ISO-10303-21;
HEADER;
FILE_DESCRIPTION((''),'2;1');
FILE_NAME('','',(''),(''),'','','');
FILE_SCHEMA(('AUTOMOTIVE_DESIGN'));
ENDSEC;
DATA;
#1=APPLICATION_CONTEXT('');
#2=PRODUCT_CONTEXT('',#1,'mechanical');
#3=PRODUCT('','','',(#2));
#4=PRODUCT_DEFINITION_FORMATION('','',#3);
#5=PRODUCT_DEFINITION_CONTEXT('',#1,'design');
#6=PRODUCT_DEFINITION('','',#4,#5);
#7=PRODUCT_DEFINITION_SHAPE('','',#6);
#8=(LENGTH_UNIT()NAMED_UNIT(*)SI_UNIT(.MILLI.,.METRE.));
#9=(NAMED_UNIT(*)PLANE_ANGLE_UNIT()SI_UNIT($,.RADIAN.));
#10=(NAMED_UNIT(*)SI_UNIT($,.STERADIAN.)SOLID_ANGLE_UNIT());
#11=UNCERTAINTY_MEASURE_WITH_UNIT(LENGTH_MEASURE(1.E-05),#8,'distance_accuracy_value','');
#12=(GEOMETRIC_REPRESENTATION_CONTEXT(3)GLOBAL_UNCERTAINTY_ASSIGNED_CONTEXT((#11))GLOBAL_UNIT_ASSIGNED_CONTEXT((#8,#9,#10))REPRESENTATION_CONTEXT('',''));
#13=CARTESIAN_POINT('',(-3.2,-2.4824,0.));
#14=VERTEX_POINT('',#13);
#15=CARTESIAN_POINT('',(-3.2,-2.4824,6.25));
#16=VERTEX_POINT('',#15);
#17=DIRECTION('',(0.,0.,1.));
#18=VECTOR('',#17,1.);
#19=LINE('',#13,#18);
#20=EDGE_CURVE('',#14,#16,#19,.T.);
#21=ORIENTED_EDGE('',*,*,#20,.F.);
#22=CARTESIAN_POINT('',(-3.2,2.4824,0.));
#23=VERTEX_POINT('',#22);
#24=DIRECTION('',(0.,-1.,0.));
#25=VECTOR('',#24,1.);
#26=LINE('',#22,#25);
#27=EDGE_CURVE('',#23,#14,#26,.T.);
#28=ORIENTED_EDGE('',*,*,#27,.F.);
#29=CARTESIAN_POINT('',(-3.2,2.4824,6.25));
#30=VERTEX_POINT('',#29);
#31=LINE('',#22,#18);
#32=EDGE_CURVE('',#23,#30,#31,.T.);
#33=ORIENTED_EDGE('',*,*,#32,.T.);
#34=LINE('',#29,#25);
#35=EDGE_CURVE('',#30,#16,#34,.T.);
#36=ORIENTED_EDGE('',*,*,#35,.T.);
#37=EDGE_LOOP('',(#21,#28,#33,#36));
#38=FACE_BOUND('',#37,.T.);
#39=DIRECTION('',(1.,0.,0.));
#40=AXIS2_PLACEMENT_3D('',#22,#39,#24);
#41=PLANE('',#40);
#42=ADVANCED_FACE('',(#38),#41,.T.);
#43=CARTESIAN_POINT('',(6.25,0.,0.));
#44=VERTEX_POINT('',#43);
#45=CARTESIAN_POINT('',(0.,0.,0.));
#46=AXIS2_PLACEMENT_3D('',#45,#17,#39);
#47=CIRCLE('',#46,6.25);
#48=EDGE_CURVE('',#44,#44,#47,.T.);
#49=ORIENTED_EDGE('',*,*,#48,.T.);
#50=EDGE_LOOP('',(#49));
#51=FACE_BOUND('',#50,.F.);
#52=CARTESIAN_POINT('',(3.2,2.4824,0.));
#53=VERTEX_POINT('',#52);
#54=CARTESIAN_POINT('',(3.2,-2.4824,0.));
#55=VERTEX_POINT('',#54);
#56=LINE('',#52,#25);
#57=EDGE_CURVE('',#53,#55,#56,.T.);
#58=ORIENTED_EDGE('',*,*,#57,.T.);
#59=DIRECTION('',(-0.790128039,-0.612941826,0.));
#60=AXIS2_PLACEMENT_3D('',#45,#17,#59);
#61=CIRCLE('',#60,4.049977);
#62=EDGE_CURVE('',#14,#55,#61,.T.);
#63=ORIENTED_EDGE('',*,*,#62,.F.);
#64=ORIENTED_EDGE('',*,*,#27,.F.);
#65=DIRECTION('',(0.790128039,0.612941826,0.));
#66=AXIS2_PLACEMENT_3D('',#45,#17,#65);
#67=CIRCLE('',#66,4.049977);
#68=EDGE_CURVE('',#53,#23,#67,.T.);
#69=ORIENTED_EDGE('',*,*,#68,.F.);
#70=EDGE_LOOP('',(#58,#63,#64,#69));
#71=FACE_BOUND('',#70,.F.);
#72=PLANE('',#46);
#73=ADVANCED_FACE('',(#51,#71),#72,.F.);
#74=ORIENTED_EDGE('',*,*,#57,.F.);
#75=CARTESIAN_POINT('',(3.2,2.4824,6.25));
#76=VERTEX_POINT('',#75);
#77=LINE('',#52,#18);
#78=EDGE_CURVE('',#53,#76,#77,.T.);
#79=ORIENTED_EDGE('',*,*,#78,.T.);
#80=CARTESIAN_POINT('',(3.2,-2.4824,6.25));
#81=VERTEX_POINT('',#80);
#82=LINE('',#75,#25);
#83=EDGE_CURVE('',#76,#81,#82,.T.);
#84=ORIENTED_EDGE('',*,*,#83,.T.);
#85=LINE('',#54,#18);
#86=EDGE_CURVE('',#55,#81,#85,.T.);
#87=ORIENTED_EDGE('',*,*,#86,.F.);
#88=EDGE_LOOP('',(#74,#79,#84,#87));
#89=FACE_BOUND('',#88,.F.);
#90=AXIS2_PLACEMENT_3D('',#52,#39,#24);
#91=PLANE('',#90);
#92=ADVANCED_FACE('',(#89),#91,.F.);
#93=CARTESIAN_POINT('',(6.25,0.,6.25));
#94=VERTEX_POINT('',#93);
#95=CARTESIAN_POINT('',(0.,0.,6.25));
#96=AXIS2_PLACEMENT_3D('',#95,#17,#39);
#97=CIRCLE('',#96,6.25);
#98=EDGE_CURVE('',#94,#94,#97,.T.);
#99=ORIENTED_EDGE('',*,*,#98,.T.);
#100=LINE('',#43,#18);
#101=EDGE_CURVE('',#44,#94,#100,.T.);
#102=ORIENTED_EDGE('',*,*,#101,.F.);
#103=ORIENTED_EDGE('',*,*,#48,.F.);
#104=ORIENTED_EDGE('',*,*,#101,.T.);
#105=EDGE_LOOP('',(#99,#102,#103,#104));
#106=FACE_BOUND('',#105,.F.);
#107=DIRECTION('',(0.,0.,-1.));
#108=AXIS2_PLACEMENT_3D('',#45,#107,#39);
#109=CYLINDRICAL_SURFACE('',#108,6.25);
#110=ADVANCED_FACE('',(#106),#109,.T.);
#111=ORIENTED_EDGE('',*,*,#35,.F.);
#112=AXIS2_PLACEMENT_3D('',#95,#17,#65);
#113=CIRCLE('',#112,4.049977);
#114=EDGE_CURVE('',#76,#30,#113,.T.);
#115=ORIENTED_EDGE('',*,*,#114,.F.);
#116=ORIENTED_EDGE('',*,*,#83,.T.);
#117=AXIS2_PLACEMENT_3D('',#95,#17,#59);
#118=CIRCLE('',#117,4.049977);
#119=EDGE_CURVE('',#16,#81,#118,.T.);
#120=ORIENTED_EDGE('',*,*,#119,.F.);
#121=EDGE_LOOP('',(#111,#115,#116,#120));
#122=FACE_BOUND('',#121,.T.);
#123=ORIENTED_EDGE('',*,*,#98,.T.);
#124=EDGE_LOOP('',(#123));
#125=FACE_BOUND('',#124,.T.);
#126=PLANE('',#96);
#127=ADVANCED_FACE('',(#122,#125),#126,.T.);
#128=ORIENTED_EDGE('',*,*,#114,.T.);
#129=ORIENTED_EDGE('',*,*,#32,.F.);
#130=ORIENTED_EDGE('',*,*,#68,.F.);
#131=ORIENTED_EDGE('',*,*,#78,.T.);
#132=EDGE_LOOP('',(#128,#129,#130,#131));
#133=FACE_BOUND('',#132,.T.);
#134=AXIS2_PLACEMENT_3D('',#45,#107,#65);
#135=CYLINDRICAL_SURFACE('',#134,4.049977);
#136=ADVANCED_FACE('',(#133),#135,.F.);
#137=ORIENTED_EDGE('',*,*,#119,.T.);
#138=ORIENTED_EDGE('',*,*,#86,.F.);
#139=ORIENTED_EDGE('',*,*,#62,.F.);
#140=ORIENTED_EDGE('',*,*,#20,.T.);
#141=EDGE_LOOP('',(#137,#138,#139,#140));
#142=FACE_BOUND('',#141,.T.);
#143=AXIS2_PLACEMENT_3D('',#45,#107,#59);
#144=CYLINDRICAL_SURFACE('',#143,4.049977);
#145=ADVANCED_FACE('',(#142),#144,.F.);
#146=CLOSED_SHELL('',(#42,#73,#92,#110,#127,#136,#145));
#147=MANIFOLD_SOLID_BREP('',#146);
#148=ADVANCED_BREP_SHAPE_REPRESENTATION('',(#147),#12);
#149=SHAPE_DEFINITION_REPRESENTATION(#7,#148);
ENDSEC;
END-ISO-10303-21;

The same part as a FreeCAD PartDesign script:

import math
import FreeCAD as App
import Part
import Sketcher
Q = App.Units.Quantity

doc = App.newDocument("Part")
body = doc.addObject("PartDesign::Body", "Body")

# Sketch on XY plane
sketch1 = body.newObject("Sketcher::SketchObject", "Sketch")
sketch1.AttachmentSupport = (doc.getObject("XY_Plane"), [""])
sketch1.MapMode = "FlatFace"
sketch1.addGeometry(Part.Circle(App.Vector(0, 0, 0), App.Vector(0, 0, 1), 6.25), False)
sketch1.addGeometry(Part.LineSegment(App.Vector(-3.2, -2.4824, 0), App.Vector(-3.2, 2.4824, 0)), False)
sketch1.addGeometry(Part.ArcOfCircle(Part.Circle(App.Vector(0, 0, 0), App.Vector(0, 0, 1), 4.049977), math.radians(37.802521), math.radians(142.197479)), False)
sketch1.addGeometry(Part.LineSegment(App.Vector(3.2, 2.4824, 0), App.Vector(3.2, -2.4824, 0)), False)
sketch1.addGeometry(Part.ArcOfCircle(Part.Circle(App.Vector(0, 0, 0), App.Vector(0, 0, 1), 4.049977), math.radians(-142.197479), math.radians(-37.802521)), False)
sketch1.addConstraint(Sketcher.Constraint("Coincident", 1, 2, 2, 2))
sketch1.addConstraint(Sketcher.Constraint("Coincident", 2, 1, 3, 1))
sketch1.addConstraint(Sketcher.Constraint("Coincident", 3, 2, 4, 2))
sketch1.addConstraint(Sketcher.Constraint("Coincident", 4, 1, 1, 1))
sketch1.addConstraint(Sketcher.Constraint("Vertical", 1))
sketch1.addConstraint(Sketcher.Constraint("Vertical", 3))
sketch1.addConstraint(Sketcher.Constraint("Coincident", 0, 3, -1, 1))
sketch1.addConstraint(Sketcher.Constraint("Coincident", 2, 3, -1, 1))
sketch1.addConstraint(Sketcher.Constraint("Coincident", 4, 3, -1, 1))
sketch1.addConstraint(Sketcher.Constraint("Equal", 2, 4))
sketch1.addConstraint(Sketcher.Constraint("Horizontal", 1, 2, 2, 1))
sketch1.addConstraint(Sketcher.Constraint("Diameter", 0, Q("12.5 mm")))
sketch1.addConstraint(Sketcher.Constraint("Radius", 2, Q("4.05 mm")))
sketch1.addConstraint(Sketcher.Constraint("DistanceX", 1, 2, 2, 1, Q("6.4 mm")))
pad1 = body.newObject("PartDesign::Pad", "Pad")
pad1.Profile = sketch1
pad1.Length = 6.25

doc.recompute()
